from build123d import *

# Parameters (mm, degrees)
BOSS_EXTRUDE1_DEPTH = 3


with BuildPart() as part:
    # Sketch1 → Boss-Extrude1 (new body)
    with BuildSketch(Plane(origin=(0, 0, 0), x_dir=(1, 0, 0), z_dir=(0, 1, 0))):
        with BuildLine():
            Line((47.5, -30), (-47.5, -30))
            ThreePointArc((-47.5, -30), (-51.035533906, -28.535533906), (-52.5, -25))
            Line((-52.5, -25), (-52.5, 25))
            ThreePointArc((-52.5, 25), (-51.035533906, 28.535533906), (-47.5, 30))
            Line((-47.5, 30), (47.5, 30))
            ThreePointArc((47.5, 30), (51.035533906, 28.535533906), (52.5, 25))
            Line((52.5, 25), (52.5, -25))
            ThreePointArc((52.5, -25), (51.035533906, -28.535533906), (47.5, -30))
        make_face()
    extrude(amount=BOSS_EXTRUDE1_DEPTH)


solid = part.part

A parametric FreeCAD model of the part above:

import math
import FreeCAD as App
import Part
import Sketcher

doc = App.newDocument("Part")
body = doc.addObject("PartDesign::Body", "Body")

# Sketch on XZ plane
sketch1 = body.newObject("Sketcher::SketchObject", "Sketch")
sketch1.AttachmentSupport = (doc.getObject("XZ_Plane"), [""])
sketch1.MapMode = "FlatFace"
sketch1.addGeometry([
    Part.LineSegment(App.Vector(-47.5, 30, 0), App.Vector(47.5, 30, 0)),  # 0
    Part.ArcOfCircle(Part.Circle(App.Vector(47.5, 25, 0), App.Vector(0, 0, 1), 5), math.radians(0), math.radians(90)),  # 1
    Part.LineSegment(App.Vector(52.5, 25, 0), App.Vector(52.5, -25, 0)),  # 2
    Part.ArcOfCircle(Part.Circle(App.Vector(47.5, -25, 0), App.Vector(0, 0, 1), 5), math.radians(-90), math.radians(0)),  # 3
    Part.LineSegment(App.Vector(47.5, -30, 0), App.Vector(-47.5, -30, 0)),  # 4
    Part.ArcOfCircle(Part.Circle(App.Vector(-47.5, -25, 0), App.Vector(0, 0, 1), 5), math.radians(180), math.radians(270)),  # 5
    Part.LineSegment(App.Vector(-52.5, -25, 0), App.Vector(-52.5, 25, 0)),  # 6
    Part.ArcOfCircle(Part.Circle(App.Vector(-47.5, 25, 0), App.Vector(0, 0, 1), 5), math.radians(90), math.radians(180)),  # 7
], False)
sketch1.addConstraint([
    Sketcher.Constraint("Tangent", 0, 2, 1, 2),
    Sketcher.Constraint("Tangent", 1, 1, 2, 1),
    Sketcher.Constraint("Tangent", 2, 2, 3, 2),
    Sketcher.Constraint("Tangent", 3, 1, 4, 1),
    Sketcher.Constraint("Tangent", 4, 2, 5, 2),
    Sketcher.Constraint("Tangent", 5, 1, 6, 1),
    Sketcher.Constraint("Tangent", 6, 2, 7, 2),
    Sketcher.Constraint("Tangent", 7, 1, 0, 1),
    Sketcher.Constraint("Horizontal", 0),
    Sketcher.Constraint("Vertical", 2),
    Sketcher.Constraint("Horizontal", 4),
    Sketcher.Constraint("Vertical", 6),
    Sketcher.Constraint("Equal", 1, 3),
    Sketcher.Constraint("Equal", 3, 5),
    Sketcher.Constraint("Equal", 5, 7),
    Sketcher.Constraint("Symmetric", 1, 3, 5, 3, -1, 1),
    Sketcher.Constraint("Radius", 1, 5.0),
    Sketcher.Constraint("DistanceX", 0, 1, 0, 2, 95.0),
    Sketcher.Constraint("DistanceY", 2, 2, 2, 1, 50.0),
])
pad1 = body.newObject("PartDesign::Pad", "Pad")
pad1.Profile = sketch1
pad1.Length = 3
pad1.Reversed = True

doc.recompute()
